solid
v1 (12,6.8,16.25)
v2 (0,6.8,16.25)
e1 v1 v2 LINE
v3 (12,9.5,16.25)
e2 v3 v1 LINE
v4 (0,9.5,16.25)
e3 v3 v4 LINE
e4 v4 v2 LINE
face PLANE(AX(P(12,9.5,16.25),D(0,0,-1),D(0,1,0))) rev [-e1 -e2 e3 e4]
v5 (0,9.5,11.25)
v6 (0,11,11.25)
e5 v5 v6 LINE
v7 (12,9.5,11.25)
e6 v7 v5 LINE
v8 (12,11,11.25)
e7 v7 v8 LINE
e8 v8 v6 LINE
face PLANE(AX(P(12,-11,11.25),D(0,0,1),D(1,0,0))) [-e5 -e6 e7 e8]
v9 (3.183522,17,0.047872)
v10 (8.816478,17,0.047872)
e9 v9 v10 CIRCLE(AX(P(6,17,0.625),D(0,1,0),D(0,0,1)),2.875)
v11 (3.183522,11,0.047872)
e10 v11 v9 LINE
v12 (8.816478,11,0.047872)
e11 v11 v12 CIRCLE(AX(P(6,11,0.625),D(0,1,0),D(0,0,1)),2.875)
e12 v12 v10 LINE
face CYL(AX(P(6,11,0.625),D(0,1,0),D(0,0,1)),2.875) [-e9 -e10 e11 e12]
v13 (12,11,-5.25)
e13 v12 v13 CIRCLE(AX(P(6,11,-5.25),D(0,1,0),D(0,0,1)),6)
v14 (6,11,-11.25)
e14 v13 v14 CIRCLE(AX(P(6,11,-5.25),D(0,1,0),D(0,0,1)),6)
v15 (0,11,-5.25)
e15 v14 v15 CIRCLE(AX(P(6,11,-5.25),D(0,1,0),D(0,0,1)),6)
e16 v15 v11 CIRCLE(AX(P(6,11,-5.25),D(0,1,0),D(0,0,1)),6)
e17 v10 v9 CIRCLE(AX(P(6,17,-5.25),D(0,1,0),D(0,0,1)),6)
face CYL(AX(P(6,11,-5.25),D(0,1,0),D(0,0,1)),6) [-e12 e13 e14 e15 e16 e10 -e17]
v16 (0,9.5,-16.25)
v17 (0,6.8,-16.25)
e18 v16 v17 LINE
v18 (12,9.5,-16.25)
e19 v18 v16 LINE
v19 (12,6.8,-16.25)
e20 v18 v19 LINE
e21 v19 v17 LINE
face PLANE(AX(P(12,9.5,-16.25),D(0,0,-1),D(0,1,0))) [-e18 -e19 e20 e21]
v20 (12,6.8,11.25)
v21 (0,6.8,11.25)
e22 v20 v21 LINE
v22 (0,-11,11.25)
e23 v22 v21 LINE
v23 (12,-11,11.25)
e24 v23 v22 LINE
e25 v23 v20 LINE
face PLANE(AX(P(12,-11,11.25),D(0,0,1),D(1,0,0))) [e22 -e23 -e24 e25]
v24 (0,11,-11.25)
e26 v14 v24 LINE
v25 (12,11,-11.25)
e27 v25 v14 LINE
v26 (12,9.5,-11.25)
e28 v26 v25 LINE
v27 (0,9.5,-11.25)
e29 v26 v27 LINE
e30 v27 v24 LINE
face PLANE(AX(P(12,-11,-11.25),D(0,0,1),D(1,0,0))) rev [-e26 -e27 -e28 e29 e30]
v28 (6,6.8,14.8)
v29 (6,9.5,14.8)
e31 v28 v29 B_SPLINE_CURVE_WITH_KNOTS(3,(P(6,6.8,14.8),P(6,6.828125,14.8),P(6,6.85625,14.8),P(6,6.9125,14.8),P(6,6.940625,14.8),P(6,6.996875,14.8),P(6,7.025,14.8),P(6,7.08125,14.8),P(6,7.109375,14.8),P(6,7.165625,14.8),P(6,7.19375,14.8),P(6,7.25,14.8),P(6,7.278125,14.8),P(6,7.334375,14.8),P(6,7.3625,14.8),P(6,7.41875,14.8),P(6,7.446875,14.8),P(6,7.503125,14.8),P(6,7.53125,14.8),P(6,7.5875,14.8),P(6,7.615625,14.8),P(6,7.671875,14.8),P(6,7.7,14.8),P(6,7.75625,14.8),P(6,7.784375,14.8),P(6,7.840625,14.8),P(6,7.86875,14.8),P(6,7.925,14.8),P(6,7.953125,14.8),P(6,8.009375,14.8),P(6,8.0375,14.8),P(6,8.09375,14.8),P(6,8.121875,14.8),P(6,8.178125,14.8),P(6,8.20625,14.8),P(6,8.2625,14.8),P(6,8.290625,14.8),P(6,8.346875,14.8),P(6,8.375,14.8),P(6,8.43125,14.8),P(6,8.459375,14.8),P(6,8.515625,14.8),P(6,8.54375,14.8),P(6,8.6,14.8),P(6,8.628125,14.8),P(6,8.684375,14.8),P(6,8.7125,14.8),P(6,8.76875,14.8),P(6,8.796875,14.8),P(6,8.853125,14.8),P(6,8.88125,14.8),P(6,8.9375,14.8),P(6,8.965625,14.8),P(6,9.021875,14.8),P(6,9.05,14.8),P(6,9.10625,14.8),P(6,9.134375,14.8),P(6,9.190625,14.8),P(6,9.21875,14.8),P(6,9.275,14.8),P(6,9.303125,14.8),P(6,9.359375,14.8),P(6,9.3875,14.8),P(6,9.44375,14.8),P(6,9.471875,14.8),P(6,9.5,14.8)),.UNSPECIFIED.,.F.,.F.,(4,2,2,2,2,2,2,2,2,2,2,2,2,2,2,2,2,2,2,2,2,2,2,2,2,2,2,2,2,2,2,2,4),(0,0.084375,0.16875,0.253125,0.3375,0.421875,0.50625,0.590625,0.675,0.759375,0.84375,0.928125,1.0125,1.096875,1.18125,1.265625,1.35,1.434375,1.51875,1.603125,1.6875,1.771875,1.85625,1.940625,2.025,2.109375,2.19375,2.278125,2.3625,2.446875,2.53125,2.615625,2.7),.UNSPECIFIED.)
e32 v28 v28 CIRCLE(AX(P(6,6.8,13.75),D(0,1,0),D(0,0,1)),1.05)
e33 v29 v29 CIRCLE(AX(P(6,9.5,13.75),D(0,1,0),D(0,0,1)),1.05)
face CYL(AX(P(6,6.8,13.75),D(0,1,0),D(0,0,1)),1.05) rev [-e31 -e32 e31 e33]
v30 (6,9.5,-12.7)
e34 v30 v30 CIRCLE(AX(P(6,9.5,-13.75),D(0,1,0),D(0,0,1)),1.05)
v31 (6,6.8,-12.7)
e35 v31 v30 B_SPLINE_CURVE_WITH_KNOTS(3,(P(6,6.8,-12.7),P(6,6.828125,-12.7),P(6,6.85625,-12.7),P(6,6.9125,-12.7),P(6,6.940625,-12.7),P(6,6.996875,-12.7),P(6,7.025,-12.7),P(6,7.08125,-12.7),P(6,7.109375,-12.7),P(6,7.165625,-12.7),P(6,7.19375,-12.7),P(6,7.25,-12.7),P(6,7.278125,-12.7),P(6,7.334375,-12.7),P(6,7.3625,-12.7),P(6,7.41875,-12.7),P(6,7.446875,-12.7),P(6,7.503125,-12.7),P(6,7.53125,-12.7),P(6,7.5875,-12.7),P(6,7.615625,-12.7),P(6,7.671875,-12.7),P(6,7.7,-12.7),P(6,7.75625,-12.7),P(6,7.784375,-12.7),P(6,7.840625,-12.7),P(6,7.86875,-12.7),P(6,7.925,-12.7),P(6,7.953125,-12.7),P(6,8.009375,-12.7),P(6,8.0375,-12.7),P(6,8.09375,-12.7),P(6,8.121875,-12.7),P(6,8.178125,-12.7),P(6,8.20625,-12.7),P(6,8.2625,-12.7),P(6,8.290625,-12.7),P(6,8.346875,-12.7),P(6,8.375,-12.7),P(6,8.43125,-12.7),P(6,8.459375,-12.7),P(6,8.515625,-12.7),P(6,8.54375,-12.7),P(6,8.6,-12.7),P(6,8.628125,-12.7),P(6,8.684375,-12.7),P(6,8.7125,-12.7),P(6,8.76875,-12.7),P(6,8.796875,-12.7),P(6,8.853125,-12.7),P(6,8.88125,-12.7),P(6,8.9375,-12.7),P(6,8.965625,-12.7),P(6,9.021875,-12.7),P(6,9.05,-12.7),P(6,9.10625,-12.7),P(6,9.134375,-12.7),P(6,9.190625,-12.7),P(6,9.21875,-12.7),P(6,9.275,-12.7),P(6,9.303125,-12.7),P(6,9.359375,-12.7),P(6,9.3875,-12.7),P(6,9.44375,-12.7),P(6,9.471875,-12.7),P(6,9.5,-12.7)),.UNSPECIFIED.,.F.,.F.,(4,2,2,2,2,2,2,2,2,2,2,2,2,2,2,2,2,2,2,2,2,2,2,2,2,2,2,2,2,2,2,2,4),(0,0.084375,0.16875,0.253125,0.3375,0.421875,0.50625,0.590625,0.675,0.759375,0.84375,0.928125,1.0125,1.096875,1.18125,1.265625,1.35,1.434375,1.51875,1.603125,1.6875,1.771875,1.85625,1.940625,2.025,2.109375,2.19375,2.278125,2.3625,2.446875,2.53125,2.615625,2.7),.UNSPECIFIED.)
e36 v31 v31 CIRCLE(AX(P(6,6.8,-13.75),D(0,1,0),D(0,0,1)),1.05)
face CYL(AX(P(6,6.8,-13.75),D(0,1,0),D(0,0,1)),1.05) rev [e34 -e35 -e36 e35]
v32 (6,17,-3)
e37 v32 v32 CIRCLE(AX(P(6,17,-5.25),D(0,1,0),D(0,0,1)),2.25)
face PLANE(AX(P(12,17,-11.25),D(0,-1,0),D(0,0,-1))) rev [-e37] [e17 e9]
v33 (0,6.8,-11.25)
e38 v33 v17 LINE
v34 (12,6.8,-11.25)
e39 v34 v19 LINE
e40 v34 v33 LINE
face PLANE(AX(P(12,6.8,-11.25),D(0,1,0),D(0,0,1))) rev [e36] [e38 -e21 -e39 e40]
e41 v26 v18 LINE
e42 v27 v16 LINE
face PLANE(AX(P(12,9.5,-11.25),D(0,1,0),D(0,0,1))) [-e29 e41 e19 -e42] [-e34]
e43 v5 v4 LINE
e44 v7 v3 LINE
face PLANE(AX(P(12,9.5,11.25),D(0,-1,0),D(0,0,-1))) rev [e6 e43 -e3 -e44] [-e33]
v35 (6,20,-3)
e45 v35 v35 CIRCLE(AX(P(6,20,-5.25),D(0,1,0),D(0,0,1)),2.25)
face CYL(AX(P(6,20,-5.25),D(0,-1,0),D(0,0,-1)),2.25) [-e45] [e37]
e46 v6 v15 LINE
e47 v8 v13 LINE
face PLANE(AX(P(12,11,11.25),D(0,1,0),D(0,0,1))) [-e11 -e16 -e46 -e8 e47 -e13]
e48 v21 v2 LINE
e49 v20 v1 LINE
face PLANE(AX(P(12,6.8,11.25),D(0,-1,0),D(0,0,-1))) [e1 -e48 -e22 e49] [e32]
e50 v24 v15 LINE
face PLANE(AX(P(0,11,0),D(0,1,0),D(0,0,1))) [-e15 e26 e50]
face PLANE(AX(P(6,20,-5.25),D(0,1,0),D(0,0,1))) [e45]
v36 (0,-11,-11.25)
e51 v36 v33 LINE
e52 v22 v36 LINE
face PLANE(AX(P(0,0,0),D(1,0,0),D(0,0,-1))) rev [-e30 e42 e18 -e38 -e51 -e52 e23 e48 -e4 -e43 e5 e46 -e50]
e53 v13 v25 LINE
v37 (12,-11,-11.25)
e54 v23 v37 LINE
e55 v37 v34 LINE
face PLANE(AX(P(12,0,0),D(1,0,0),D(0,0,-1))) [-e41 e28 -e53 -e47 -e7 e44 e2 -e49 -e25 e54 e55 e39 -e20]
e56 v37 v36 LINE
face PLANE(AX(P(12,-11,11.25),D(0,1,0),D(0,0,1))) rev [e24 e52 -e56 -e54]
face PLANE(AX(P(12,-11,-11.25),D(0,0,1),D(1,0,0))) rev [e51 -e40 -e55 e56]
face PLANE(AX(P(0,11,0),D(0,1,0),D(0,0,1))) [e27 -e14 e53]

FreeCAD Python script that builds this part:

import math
import FreeCAD as App
import Part
import Sketcher
from FreeCAD import Vector


def add_polygon(sketch, points):
    """Adds a closed chain of lines whose ends are joined by coincident constraints."""
    first, n = sketch.GeometryCount, len(points)
    for a, b in zip(points, points[1:] + points[:1]):
        sketch.addGeometry(Part.LineSegment(App.Vector(*a, 0), App.Vector(*b, 0)), False)
    for i in range(n):
        sketch.addConstraint(Sketcher.Constraint("Coincident", first + i, 2, first + (i + 1) % n, 1))

doc = App.newDocument("Part")
body = doc.addObject("PartDesign::Body", "Body")

# Sketch on YZ plane
sketch1 = doc.addObject("Sketcher::SketchObject", "Sketch")
body.addObject(sketch1)
sketch1.AttachmentSupport = (doc.YZ_Plane, [""])
sketch1.MapMode = "FlatFace"
add_polygon(sketch1, [(-11, 11.2), (-11, -11.2), (6.8, -11.2), (6.8, -16.2), (9.5, -16.2), (9.5, -11.2), (17, -11.2), (17, 3.5), (11, 3.5), (11, 11.2), (9.5, 11.2), (9.5, 16.2), (6.8, 16.2), (6.8, 11.2)])  # lines 0-13
sketch1.addConstraint(Sketcher.Constraint("Vertical", 0))
sketch1.addConstraint(Sketcher.Constraint("Horizontal", 1))
sketch1.addConstraint(Sketcher.Constraint("Vertical", 2))
sketch1.addConstraint(Sketcher.Constraint("Horizontal", 3))
sketch1.addConstraint(Sketcher.Constraint("Vertical", 4))
sketch1.addConstraint(Sketcher.Constraint("Horizontal", 5))
sketch1.addConstraint(Sketcher.Constraint("Vertical", 6))
sketch1.addConstraint(Sketcher.Constraint("Horizontal", 7))
sketch1.addConstraint(Sketcher.Constraint("Vertical", 8))
sketch1.addConstraint(Sketcher.Constraint("Horizontal", 9))
sketch1.addConstraint(Sketcher.Constraint("Vertical", 10))
sketch1.addConstraint(Sketcher.Constraint("Horizontal", 11))
sketch1.addConstraint(Sketcher.Constraint("Vertical", 12))
sketch1.addConstraint(Sketcher.Constraint("Horizontal", 13))
sketch1.addConstraint(Sketcher.Constraint("Symmetric", 0, 2, 8, 2, -1, 1))
sketch1.addConstraint(Sketcher.Constraint("Symmetric", 4, 2, 9, 2, -1))
sketch1.addConstraint(Sketcher.Constraint("Symmetric", 2, 2, 11, 2, -1))
sketch1.addConstraint(Sketcher.Constraint("Horizontal", 9, 2, 12, 2))
sketch1.addConstraint(Sketcher.Constraint("DistanceX", 7, 2, 7, 1, 6.0))
sketch1.addConstraint(Sketcher.Constraint("DistanceY", 2, 2, 2, 1, 5.0))
sketch1.addConstraint(Sketcher.Constraint("DistanceX", 1, 1, 1, 2, 17.8))
sketch1.addConstraint(Sketcher.Constraint("DistanceX", 3, 1, 3, 2, 2.7))
sketch1.addConstraint(Sketcher.Constraint("DistanceX", 5, 1, 5, 2, 7.5))
sketch1.addConstraint(Sketcher.Constraint("DistanceY", 0, 2, 0, 1, 22.5))
sketch1.addConstraint(Sketcher.Constraint("DistanceY", 6, 1, 6, 2, 14.75))
pad1 = doc.addObject("PartDesign::Pad", "Pad")
body.addObject(pad1)
pad1.Profile = sketch1
pad1.Length = 12

# Sketch on XZ plane
sketch2 = doc.addObject("Sketcher::SketchObject", "Sketch001")
body.addObject(sketch2)
sketch2.AttachmentSupport = (doc.XZ_Plane, [""])
sketch2.MapMode = "FlatFace"
sketch2.AttachmentOffset = App.Placement(Vector(0, 0, -17), App.Rotation())
sketch2.addGeometry(Part.ArcOfCircle(Part.Circle(Vector(6, -5.2, 0), Vector(0, 0, 1), 6), math.radians(180), math.radians(270)), False)
sketch2.addGeometry(Part.LineSegment(Vector(6, -11.2, 0), Vector(0, -11.2, 0)), False)
sketch2.addGeometry(Part.LineSegment(Vector(0, -11.2, 0), Vector(0, -5.2, 0)), False)
sketch2.addGeometry(Part.LineSegment(Vector(12, -11.2, 0), Vector(6, -11.2, 0)), False)
sketch2.addGeometry(Part.ArcOfCircle(Part.Circle(Vector(6, -5.2, 0), Vector(0, 0, 1), 6), math.radians(-90), math.radians(0)), False)
sketch2.addGeometry(Part.LineSegment(Vector(12, -5.2, 0), Vector(12, -11.2, 0)), False)
sketch2.addGeometry(Part.LineSegment(Vector(12, 3.5, 0), Vector(12, -5.2, 0)), False)
sketch2.addGeometry(Part.ArcOfCircle(Part.Circle(Vector(6, -5.2, 0), Vector(0, 0, 1), 6), math.radians(0), math.radians(62)), False)
sketch2.addGeometry(Part.ArcOfCircle(Part.Circle(Vector(6, 0.6, 0), Vector(0, 0, 1), 2.9), math.radians(-11.58), math.radians(0)), False)
sketch2.addGeometry(Part.ArcOfCircle(Part.Circle(Vector(6, 0.6, 0), Vector(0, 0, 1), 2.9), math.radians(0), math.radians(90)), False)
sketch2.addGeometry(Part.LineSegment(Vector(6, 3.5, 0), Vector(12, 3.5, 0)), False)
sketch2.addGeometry(Part.ArcOfCircle(Part.Circle(Vector(6, -5.2, 0), Vector(0, 0, 1), 6), math.radians(118), math.radians(180)), False)
sketch2.addGeometry(Part.LineSegment(Vector(0, -5.2, 0), Vector(0, 3.5, 0)), False)
sketch2.addGeometry(Part.LineSegment(Vector(0, 3.5, 0), Vector(6, 3.5, 0)), False)
sketch2.addGeometry(Part.ArcOfCircle(Part.Circle(Vector(6, 0.6, 0), Vector(0, 0, 1), 2.9), math.radians(90), math.radians(192)), False)
sketch2.addConstraint(Sketcher.Constraint("Tangent", 0, 2, 1, 1))
sketch2.addConstraint(Sketcher.Constraint("Coincident", 1, 2, 2, 1))
sketch2.addConstraint(Sketcher.Constraint("Tangent", 2, 2, 0, 1))
sketch2.addConstraint(Sketcher.Constraint("Tangent", 3, 2, 4, 1))
sketch2.addConstraint(Sketcher.Constraint("Tangent", 4, 2, 5, 1))
sketch2.addConstraint(Sketcher.Constraint("Coincident", 5, 2, 3, 1))
sketch2.addConstraint(Sketcher.Constraint("Tangent", 6, 2, 7, 1))
sketch2.addConstraint(Sketcher.Constraint("Coincident", 7, 2, 8, 1))
sketch2.addConstraint(Sketcher.Constraint("Tangent", 8, 2, 9, 1))
sketch2.addConstraint(Sketcher.Constraint("Tangent", 9, 2, 10, 1))
sketch2.addConstraint(Sketcher.Constraint("Coincident", 10, 2, 6, 1))
sketch2.addConstraint(Sketcher.Constraint("Tangent", 11, 2, 12, 1))
sketch2.addConstraint(Sketcher.Constraint("Coincident", 12, 2, 13, 1))
sketch2.addConstraint(Sketcher.Constraint("Tangent", 13, 2, 14, 1))
sketch2.addConstraint(Sketcher.Constraint("Coincident", 14, 2, 11, 1))
sketch2.addConstraint(Sketcher.Constraint("Horizontal", 1))
sketch2.addConstraint(Sketcher.Constraint("Vertical", 2))
sketch2.addConstraint(Sketcher.Constraint("Horizontal", 3))
sketch2.addConstraint(Sketcher.Constraint("Vertical", 5))
sketch2.addConstraint(Sketcher.Constraint("Vertical", 6))
sketch2.addConstraint(Sketcher.Constraint("Horizontal", 10))
sketch2.addConstraint(Sketcher.Constraint("Vertical", 12))
sketch2.addConstraint(Sketcher.Constraint("Horizontal", 13))
sketch2.addConstraint(Sketcher.Constraint("Coincident", 4, 3, 0, 3))
sketch2.addConstraint(Sketcher.Constraint("Coincident", 7, 3, 0, 3))
sketch2.addConstraint(Sketcher.Constraint("Coincident", 11, 3, 0, 3))
sketch2.addConstraint(Sketcher.Constraint("Coincident", 14, 3, 8, 3))
sketch2.addConstraint(Sketcher.Constraint("Coincident", 13, 2, 9, 2))
sketch2.addConstraint(Sketcher.Constraint("Equal", 0, 4))
sketch2.addConstraint(Sketcher.Constraint("Equal", 4, 7))
sketch2.addConstraint(Sketcher.Constraint("Equal", 7, 11))
sketch2.addConstraint(Sketcher.Constraint("PointOnObject", 1, 2, -2))
sketch2.addConstraint(Sketcher.Constraint("Horizontal", 14, 3, 8, 2))
sketch2.addConstraint(Sketcher.Constraint("Horizontal", 7, 2, 14, 2))
sketch2.addConstraint(Sketcher.Constraint("Radius", 0, 6.0))
sketch2.addConstraint(Sketcher.Constraint("Radius", 8, 2.875))
sketch2.addConstraint(Sketcher.Constraint("DistanceY", 6, 2, 6, 1, 8.75))
sketch2.addConstraint(Sketcher.Constraint("DistanceY", -1, 1, 9, 2, 3.5))
pocket1 = doc.addObject("PartDesign::Pocket", "Pocket")
body.addObject(pocket1)
pocket1.Profile = sketch2
pocket1.Length = 6
pocket1.Reversed = True

# Sketch on XZ plane
sketch3 = doc.addObject("Sketcher::SketchObject", "Sketch002")
body.addObject(sketch3)
sketch3.AttachmentSupport = (doc.XZ_Plane, [""])
sketch3.MapMode = "FlatFace"
sketch3.AttachmentOffset = App.Placement(Vector(0, 0, -9.5), App.Rotation())
sketch3.addGeometry(Part.Circle(Vector(6, 13.8, 0), Vector(0, 0, 1), 1.1), False)
sketch3.addGeometry(Part.Circle(Vector(6, -13.8, 0), Vector(0, 0, 1), 1.1), False)
sketch3.addConstraint(Sketcher.Constraint("Equal", 0, 1))
sketch3.addConstraint(Sketcher.Constraint("Symmetric", 0, 3, 1, 3, -1))
sketch3.addConstraint(Sketcher.Constraint("Diameter", 0, 2.1))
sketch3.addConstraint(Sketcher.Constraint("DistanceX", -1, 1, 0, 3, 6.0))
sketch3.addConstraint(Sketcher.Constraint("DistanceY", 1, 3, 0, 3, 27.5))
pocket2 = doc.addObject("PartDesign::Pocket", "Pocket001")
body.addObject(pocket2)
pocket2.Profile = sketch3
pocket2.Length = 2.7
pocket2.Reversed = True

# Sketch on XZ plane
sketch4 = doc.addObject("Sketcher::SketchObject", "Sketch003")
body.addObject(sketch4)
sketch4.AttachmentSupport = (doc.XZ_Plane, [""])
sketch4.MapMode = "FlatFace"
sketch4.AttachmentOffset = App.Placement(Vector(0, 0, -17), App.Rotation())
sketch4.addGeometry(Part.Circle(Vector(6, -5.2, 0), Vector(0, 0, 1), 2.2), False)
sketch4.addConstraint(Sketcher.Constraint("Diameter", 0, 4.5))
sketch4.addConstraint(Sketcher.Constraint("DistanceX", -1, 1, 0, 3, 6.0))
sketch4.addConstraint(Sketcher.Constraint("DistanceY", 0, 3, -1, 1, 5.25))
pad2 = doc.addObject("PartDesign::Pad", "Pad001")
body.addObject(pad2)
pad2.Profile = sketch4
pad2.Length = 3
pad2.Reversed = True

doc.recompute()
